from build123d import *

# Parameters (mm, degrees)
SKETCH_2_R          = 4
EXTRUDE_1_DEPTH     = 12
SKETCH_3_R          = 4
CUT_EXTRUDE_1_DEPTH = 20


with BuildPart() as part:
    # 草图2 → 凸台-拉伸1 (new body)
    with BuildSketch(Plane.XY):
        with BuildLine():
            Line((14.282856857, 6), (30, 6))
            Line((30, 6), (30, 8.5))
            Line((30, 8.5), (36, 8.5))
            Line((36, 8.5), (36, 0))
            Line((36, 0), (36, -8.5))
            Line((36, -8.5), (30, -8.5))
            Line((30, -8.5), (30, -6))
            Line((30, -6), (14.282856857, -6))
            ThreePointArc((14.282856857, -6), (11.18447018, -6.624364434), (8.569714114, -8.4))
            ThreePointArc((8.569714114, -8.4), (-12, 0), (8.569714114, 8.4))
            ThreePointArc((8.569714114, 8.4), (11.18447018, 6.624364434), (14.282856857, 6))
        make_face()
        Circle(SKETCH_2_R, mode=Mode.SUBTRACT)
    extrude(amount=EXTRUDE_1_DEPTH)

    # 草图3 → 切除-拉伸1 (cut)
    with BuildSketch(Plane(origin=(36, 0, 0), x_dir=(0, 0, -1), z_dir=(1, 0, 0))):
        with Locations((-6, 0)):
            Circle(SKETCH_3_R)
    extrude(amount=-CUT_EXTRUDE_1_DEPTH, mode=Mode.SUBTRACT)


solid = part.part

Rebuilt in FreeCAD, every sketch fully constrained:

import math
import FreeCAD as App
import Part
import Sketcher
Q = App.Units.Quantity

doc = App.newDocument("Part")
body = doc.addObject("PartDesign::Body", "Body")

sketch1 = body.newObject("Sketcher::SketchObject", "Sketch")
sketch1.AttachmentSupport = (doc.getObject("XY_Plane"), [""])
sketch1.MapMode = "FlatFace"
sketch1.addGeometry(Part.LineSegment(App.Vector(30, 6, 0), App.Vector(14.3, 6, 0)), False)
sketch1.addGeometry(Part.ArcOfCircle(Part.Circle(App.Vector(14.3, 14, 0), App.Vector(0, 0, 1), 8), math.radians(-136), math.radians(-90)), False)
sketch1.addGeometry(Part.ArcOfCircle(Part.Circle(App.Vector(0, 0, 0), App.Vector(0, 0, 1), 12), math.radians(44), math.radians(316)), False)
sketch1.addGeometry(Part.ArcOfCircle(Part.Circle(App.Vector(14.3, -14, 0), App.Vector(0, 0, 1), 8), math.radians(90), math.radians(136)), False)
sketch1.addGeometry(Part.LineSegment(App.Vector(14.3, -6, 0), App.Vector(30, -6, 0)), False)
sketch1.addGeometry(Part.LineSegment(App.Vector(30, -6, 0), App.Vector(30, -8.5, 0)), False)
sketch1.addGeometry(Part.LineSegment(App.Vector(30, -8.5, 0), App.Vector(36, -8.5, 0)), False)
sketch1.addGeometry(Part.LineSegment(App.Vector(36, -8.5, 0), App.Vector(36, 8.5, 0)), False)
sketch1.addGeometry(Part.LineSegment(App.Vector(36, 8.5, 0), App.Vector(30, 8.5, 0)), False)
sketch1.addGeometry(Part.LineSegment(App.Vector(30, 8.5, 0), App.Vector(30, 6, 0)), False)
sketch1.addGeometry(Part.Circle(App.Vector(0, 0, 0), App.Vector(0, 0, 1), 4), False)
sketch1.addConstraint(Sketcher.Constraint("Tangent", 0, 2, 1, 2))
sketch1.addConstraint(Sketcher.Constraint("Tangent", 1, 1, 2, 1))
sketch1.addConstraint(Sketcher.Constraint("Tangent", 2, 2, 3, 2))
sketch1.addConstraint(Sketcher.Constraint("Tangent", 3, 1, 4, 1))
sketch1.addConstraint(Sketcher.Constraint("Coincident", 4, 2, 5, 1))
sketch1.addConstraint(Sketcher.Constraint("Coincident", 5, 2, 6, 1))
sketch1.addConstraint(Sketcher.Constraint("Coincident", 6, 2, 7, 1))
sketch1.addConstraint(Sketcher.Constraint("Coincident", 7, 2, 8, 1))
sketch1.addConstraint(Sketcher.Constraint("Coincident", 8, 2, 9, 1))
sketch1.addConstraint(Sketcher.Constraint("Coincident", 9, 2, 0, 1))
sketch1.addConstraint(Sketcher.Constraint("Horizontal", 0))
sketch1.addConstraint(Sketcher.Constraint("Horizontal", 4))
sketch1.addConstraint(Sketcher.Constraint("Vertical", 5))
sketch1.addConstraint(Sketcher.Constraint("Horizontal", 6))
sketch1.addConstraint(Sketcher.Constraint("Vertical", 7))
sketch1.addConstraint(Sketcher.Constraint("Horizontal", 8))
sketch1.addConstraint(Sketcher.Constraint("Vertical", 9))
sketch1.addConstraint(Sketcher.Constraint("Coincident", 2, 3, -1, 1))
sketch1.addConstraint(Sketcher.Constraint("Coincident", 10, 3, -1, 1))
sketch1.addConstraint(Sketcher.Constraint("Equal", 1, 3))
sketch1.addConstraint(Sketcher.Constraint("Symmetric", 5, 2, 8, 2, -1))
sketch1.addConstraint(Sketcher.Constraint("Vertical", 1, 3, 3, 3))
sketch1.addConstraint(Sketcher.Constraint("Diameter", 10, Q("8 mm")))
sketch1.addConstraint(Sketcher.Constraint("Radius", 1, Q("8 mm")))
sketch1.addConstraint(Sketcher.Constraint("Radius", 2, Q("12 mm")))
sketch1.addConstraint(Sketcher.Constraint("DistanceX", 6, 1, 6, 2, Q("6 mm")))
sketch1.addConstraint(Sketcher.Constraint("DistanceY", 7, 1, 7, 2, Q("17 mm")))
sketch1.addConstraint(Sketcher.Constraint("DistanceY", 5, 2, 5, 1, Q("2.5 mm")))
sketch1.addConstraint(Sketcher.Constraint("DistanceX", -1, 1, 4, 2, Q("30 mm")))
pad1 = body.newObject("PartDesign::Pad", "Pad")
pad1.Profile = sketch1
pad1.Length = 12

sketch2 = body.newObject("Sketcher::SketchObject", "Sketch001")
sketch2.AttachmentSupport = (doc.getObject("YZ_Plane"), [""])
sketch2.MapMode = "FlatFace"
sketch2.AttachmentOffset = App.Placement(App.Vector(0, 0, 36), App.Rotation())
sketch2.addGeometry(Part.Circle(App.Vector(0, 6, 0), App.Vector(0, 0, 1), 4), False)
sketch2.addConstraint(Sketcher.Constraint("PointOnObject", 0, 3, -2))
sketch2.addConstraint(Sketcher.Constraint("Diameter", 0, Q("8 mm")))
sketch2.addConstraint(Sketcher.Constraint("DistanceY", -1, 1, 0, 3, Q("6 mm")))
pocket1 = body.newObject("PartDesign::Pocket", "Pocket")
pocket1.Profile = sketch2
pocket1.Length = 20

doc.recompute()
